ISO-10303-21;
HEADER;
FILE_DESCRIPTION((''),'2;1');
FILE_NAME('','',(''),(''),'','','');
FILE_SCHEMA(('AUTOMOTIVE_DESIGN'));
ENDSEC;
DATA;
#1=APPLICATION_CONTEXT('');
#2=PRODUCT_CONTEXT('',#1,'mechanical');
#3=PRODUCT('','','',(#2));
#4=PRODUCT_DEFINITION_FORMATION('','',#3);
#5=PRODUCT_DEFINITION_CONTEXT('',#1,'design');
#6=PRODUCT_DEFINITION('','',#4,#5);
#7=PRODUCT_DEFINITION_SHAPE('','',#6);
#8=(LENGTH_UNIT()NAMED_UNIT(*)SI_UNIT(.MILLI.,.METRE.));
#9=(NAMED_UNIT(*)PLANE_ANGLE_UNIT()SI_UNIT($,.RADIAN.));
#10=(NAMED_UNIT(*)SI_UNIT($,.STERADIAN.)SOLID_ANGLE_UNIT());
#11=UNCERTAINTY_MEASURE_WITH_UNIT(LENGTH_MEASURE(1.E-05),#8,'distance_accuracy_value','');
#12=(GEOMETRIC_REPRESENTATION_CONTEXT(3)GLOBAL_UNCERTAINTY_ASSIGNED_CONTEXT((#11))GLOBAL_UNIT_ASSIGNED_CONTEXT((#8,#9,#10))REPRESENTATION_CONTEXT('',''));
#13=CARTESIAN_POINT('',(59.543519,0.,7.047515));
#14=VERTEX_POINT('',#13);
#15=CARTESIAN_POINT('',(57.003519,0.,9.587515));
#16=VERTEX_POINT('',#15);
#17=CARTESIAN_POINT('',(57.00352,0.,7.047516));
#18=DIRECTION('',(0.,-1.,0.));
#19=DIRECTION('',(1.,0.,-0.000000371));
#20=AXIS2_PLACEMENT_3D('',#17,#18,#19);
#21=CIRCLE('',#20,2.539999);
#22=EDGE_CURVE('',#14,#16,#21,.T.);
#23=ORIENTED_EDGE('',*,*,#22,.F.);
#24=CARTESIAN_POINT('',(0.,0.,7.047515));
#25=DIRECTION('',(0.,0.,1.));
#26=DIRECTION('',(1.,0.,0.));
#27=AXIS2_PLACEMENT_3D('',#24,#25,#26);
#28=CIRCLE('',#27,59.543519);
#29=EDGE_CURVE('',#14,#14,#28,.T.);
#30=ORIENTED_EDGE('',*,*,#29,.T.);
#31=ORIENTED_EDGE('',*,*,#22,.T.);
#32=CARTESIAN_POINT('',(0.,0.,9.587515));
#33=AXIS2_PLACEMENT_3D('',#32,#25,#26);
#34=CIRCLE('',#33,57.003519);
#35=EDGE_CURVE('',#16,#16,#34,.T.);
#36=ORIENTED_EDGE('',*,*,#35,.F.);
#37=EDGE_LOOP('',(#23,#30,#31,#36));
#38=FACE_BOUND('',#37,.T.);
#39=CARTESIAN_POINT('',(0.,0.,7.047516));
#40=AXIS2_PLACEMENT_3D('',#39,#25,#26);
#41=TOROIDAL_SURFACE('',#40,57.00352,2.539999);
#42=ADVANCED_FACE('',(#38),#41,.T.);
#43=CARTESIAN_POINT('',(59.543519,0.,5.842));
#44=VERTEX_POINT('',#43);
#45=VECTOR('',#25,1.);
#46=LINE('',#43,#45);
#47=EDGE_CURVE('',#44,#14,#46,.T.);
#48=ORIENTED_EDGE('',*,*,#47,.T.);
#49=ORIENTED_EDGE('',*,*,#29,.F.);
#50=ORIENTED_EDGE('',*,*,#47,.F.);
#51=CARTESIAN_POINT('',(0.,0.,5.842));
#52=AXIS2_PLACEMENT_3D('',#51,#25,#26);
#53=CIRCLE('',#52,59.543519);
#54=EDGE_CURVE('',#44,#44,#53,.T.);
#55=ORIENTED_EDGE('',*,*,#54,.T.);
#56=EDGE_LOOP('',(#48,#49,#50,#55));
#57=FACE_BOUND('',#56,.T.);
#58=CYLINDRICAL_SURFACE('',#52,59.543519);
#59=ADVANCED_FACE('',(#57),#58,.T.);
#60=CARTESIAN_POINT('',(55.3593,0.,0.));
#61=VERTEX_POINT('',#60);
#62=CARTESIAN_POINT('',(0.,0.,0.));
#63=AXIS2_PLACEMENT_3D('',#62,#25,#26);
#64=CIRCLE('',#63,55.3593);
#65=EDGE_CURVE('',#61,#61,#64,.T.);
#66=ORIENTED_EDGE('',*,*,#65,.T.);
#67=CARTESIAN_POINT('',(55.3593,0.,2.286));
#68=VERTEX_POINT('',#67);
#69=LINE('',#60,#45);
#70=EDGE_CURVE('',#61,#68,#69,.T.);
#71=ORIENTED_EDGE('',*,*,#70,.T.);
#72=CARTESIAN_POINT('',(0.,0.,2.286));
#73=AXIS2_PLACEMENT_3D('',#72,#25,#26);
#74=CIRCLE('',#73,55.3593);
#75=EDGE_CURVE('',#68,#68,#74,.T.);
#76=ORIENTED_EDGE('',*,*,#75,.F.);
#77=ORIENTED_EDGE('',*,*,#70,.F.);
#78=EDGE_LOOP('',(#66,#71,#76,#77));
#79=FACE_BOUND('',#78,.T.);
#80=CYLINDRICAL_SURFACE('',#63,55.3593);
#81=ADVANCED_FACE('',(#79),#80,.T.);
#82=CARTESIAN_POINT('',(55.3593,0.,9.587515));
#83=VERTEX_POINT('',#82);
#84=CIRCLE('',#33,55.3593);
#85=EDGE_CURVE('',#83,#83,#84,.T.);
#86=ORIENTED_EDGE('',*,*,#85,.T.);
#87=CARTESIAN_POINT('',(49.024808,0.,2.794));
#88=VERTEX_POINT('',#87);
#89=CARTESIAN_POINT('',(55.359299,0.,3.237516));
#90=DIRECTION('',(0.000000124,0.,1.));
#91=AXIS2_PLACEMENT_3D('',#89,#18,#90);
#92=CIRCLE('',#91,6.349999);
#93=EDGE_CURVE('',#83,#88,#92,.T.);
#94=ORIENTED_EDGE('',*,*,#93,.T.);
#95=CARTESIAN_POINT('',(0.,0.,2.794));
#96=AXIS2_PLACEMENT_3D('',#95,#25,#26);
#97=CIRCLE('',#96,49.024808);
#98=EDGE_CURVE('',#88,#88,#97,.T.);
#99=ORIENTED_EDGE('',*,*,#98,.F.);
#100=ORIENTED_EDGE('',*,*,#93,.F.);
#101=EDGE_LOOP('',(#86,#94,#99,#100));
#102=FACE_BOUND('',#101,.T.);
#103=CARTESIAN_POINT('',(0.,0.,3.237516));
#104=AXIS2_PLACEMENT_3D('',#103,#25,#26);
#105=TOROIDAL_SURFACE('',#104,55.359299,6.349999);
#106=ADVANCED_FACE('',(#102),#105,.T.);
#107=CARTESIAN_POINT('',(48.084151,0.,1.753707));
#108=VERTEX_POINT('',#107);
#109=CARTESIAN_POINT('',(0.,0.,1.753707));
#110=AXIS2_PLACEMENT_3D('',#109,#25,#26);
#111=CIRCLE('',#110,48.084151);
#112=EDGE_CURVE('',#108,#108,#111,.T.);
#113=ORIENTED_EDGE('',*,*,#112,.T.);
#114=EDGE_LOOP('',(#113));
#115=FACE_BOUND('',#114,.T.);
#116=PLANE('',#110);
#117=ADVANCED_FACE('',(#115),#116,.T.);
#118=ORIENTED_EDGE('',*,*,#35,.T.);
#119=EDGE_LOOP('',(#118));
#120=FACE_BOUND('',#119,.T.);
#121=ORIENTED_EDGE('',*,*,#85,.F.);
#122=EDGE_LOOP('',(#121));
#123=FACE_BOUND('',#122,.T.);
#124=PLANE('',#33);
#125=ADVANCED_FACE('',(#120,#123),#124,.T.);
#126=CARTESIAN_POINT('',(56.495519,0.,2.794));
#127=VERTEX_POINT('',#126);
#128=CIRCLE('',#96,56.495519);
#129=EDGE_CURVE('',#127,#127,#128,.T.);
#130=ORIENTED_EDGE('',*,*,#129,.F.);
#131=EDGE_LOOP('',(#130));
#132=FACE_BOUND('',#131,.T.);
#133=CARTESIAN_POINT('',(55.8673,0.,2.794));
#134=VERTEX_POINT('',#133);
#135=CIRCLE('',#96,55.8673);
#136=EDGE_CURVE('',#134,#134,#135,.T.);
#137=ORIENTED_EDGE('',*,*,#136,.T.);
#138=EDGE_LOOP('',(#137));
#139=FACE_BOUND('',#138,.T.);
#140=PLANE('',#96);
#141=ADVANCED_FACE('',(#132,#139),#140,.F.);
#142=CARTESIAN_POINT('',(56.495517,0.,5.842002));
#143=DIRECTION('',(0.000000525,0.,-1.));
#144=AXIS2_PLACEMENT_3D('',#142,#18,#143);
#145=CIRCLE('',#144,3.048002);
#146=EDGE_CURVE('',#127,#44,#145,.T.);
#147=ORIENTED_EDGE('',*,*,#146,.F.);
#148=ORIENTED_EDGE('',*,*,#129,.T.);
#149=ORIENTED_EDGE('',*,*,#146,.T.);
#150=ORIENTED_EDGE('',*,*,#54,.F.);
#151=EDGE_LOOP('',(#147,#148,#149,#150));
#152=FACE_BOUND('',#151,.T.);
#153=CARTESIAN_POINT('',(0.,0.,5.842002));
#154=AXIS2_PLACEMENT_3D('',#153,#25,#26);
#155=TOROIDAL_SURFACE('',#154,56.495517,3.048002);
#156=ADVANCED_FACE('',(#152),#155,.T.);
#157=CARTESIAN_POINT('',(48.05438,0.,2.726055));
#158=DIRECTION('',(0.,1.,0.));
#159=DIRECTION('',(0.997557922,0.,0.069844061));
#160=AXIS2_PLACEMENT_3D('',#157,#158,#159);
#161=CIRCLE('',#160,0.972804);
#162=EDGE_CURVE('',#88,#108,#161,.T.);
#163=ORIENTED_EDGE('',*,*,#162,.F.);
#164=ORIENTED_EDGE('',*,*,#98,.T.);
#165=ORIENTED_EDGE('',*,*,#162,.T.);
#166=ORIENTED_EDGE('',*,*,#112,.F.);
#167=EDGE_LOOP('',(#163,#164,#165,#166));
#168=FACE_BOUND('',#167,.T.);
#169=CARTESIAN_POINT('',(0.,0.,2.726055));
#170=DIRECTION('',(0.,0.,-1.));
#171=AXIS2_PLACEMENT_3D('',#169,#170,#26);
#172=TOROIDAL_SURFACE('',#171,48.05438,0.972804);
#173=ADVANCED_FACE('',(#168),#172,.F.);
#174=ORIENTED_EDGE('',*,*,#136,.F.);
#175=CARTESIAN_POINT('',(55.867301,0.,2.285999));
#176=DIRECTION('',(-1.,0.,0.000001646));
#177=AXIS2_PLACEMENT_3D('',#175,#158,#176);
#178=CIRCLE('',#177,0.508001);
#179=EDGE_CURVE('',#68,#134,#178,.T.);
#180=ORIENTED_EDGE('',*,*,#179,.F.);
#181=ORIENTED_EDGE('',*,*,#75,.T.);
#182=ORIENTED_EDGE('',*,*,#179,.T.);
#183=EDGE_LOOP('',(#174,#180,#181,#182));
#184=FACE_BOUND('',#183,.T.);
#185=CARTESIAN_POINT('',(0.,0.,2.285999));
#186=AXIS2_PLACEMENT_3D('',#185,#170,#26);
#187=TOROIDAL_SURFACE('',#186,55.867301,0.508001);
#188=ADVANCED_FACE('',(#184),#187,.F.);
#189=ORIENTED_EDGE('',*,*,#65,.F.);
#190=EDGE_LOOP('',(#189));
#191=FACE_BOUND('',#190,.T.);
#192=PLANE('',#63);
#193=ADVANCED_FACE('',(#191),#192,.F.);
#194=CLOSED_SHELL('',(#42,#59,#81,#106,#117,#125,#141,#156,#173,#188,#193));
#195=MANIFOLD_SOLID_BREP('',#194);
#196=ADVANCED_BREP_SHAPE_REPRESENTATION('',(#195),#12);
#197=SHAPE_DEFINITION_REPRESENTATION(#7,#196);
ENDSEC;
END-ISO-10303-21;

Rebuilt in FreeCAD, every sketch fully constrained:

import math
import FreeCAD as App
import Part
import Sketcher
from FreeCAD import Vector
Q = App.Units.Quantity

doc = App.newDocument("Part")
body = doc.addObject("PartDesign::Body", "Body")

sketch1 = body.newObject("Sketcher::SketchObject", "Sketch")
sketch1.AttachmentSupport = (doc.getObject("XZ_Plane"), [""])
sketch1.MapMode = "FlatFace"
sketch1.addGeometry([
    Part.LineSegment(Vector(0, 1.8, 0), Vector(0, 0, 0)),
    Part.LineSegment(Vector(0, 0, 0), Vector(55.4, 0, 0)),
    Part.LineSegment(Vector(55.4, 0, 0), Vector(55.4, 2.3, 0)),
    Part.ArcOfCircle(Part.Circle(Vector(55.9, 2.3, 0), Vector(0, 0, 1), 0.5), math.radians(90), math.radians(180)),
    Part.LineSegment(Vector(55.9, 2.8, 0), Vector(56.5, 2.8, 0)),
    Part.ArcOfCircle(Part.Circle(Vector(56.5, 5.8, 0), Vector(0, 0, 1), 3), math.radians(-90), math.radians(0)),
    Part.LineSegment(Vector(59.5, 5.8, 0), Vector(59.5, 7, 0)),
    Part.ArcOfCircle(Part.Circle(Vector(57, 7, 0), Vector(0, 0, 1), 2.5), math.radians(0), math.radians(90)),
    Part.LineSegment(Vector(57, 9.6, 0), Vector(55.4, 9.6, 0)),
    Part.ArcOfCircle(Part.Circle(Vector(55.4, 3.2, 0), Vector(0, 0, 1), 6.3), math.radians(90), math.radians(184)),
    Part.ArcOfCircle(Part.Circle(Vector(48.1, 2.7, 0), Vector(0, 0, 1), 1), math.radians(-88), math.radians(4)),
    Part.LineSegment(Vector(48.1, 1.8, 0), Vector(0, 1.8, 0)),
], False)
sketch1.addConstraint([
    Sketcher.Constraint("Coincident", 0, 2, 1, 1),
    Sketcher.Constraint("Coincident", 1, 2, 2, 1),
    Sketcher.Constraint("Tangent", 2, 2, 3, 2),
    Sketcher.Constraint("Tangent", 3, 1, 4, 1),
    Sketcher.Constraint("Tangent", 4, 2, 5, 1),
    Sketcher.Constraint("Tangent", 5, 2, 6, 1),
    Sketcher.Constraint("Tangent", 6, 2, 7, 1),
    Sketcher.Constraint("Tangent", 7, 2, 8, 1),
    Sketcher.Constraint("Tangent", 8, 2, 9, 1),
    Sketcher.Constraint("Tangent", 9, 2, 10, 2),
    Sketcher.Constraint("Coincident", 10, 1, 11, 1),
    Sketcher.Constraint("Coincident", 11, 2, 0, 1),
    Sketcher.Constraint("Vertical", 0),
    Sketcher.Constraint("Horizontal", 1),
    Sketcher.Constraint("Vertical", 2),
    Sketcher.Constraint("Horizontal", 4),
    Sketcher.Constraint("Vertical", 6),
    Sketcher.Constraint("Horizontal", 8),
    Sketcher.Constraint("Horizontal", 11),
    Sketcher.Constraint("Coincident", 0, 2, -1, 1),
    Sketcher.Constraint("Horizontal", 4, 2, 9, 2),
    Sketcher.Constraint("Vertical", 9, 3, 1, 2),
    Sketcher.Constraint("Radius", 7, Q("0.1 in")),
    Sketcher.Constraint("Radius", 3, Q("0.02 in")),
    Sketcher.Constraint("Radius", 5, Q("0.1200001 in")),
    Sketcher.Constraint("Radius", 9, Q("0.25 in")),
    Sketcher.Constraint("DistanceY", 2, 1, 2, 2, Q("0.09 in")),
    Sketcher.Constraint("DistanceX", 1, 1, 1, 2, Q("2.1795 in")),
    Sketcher.Constraint("Radius", 10, Q("0.972804 mm")),
    Sketcher.Constraint("DistanceX", 4, 1, 4, 2, Q("0.628219 mm")),
    Sketcher.Constraint("DistanceX", 11, 2, 11, 1, Q("48.084151 mm")),
    Sketcher.Constraint("DistanceY", 0, 2, 0, 1, Q("1.753707 mm")),
])
revolution = body.newObject("PartDesign::Revolution", "Revolution")
revolution.Profile = sketch1
revolution.ReferenceAxis = (sketch1, ["V_Axis"])
revolution.Angle = 360

doc.recompute()
